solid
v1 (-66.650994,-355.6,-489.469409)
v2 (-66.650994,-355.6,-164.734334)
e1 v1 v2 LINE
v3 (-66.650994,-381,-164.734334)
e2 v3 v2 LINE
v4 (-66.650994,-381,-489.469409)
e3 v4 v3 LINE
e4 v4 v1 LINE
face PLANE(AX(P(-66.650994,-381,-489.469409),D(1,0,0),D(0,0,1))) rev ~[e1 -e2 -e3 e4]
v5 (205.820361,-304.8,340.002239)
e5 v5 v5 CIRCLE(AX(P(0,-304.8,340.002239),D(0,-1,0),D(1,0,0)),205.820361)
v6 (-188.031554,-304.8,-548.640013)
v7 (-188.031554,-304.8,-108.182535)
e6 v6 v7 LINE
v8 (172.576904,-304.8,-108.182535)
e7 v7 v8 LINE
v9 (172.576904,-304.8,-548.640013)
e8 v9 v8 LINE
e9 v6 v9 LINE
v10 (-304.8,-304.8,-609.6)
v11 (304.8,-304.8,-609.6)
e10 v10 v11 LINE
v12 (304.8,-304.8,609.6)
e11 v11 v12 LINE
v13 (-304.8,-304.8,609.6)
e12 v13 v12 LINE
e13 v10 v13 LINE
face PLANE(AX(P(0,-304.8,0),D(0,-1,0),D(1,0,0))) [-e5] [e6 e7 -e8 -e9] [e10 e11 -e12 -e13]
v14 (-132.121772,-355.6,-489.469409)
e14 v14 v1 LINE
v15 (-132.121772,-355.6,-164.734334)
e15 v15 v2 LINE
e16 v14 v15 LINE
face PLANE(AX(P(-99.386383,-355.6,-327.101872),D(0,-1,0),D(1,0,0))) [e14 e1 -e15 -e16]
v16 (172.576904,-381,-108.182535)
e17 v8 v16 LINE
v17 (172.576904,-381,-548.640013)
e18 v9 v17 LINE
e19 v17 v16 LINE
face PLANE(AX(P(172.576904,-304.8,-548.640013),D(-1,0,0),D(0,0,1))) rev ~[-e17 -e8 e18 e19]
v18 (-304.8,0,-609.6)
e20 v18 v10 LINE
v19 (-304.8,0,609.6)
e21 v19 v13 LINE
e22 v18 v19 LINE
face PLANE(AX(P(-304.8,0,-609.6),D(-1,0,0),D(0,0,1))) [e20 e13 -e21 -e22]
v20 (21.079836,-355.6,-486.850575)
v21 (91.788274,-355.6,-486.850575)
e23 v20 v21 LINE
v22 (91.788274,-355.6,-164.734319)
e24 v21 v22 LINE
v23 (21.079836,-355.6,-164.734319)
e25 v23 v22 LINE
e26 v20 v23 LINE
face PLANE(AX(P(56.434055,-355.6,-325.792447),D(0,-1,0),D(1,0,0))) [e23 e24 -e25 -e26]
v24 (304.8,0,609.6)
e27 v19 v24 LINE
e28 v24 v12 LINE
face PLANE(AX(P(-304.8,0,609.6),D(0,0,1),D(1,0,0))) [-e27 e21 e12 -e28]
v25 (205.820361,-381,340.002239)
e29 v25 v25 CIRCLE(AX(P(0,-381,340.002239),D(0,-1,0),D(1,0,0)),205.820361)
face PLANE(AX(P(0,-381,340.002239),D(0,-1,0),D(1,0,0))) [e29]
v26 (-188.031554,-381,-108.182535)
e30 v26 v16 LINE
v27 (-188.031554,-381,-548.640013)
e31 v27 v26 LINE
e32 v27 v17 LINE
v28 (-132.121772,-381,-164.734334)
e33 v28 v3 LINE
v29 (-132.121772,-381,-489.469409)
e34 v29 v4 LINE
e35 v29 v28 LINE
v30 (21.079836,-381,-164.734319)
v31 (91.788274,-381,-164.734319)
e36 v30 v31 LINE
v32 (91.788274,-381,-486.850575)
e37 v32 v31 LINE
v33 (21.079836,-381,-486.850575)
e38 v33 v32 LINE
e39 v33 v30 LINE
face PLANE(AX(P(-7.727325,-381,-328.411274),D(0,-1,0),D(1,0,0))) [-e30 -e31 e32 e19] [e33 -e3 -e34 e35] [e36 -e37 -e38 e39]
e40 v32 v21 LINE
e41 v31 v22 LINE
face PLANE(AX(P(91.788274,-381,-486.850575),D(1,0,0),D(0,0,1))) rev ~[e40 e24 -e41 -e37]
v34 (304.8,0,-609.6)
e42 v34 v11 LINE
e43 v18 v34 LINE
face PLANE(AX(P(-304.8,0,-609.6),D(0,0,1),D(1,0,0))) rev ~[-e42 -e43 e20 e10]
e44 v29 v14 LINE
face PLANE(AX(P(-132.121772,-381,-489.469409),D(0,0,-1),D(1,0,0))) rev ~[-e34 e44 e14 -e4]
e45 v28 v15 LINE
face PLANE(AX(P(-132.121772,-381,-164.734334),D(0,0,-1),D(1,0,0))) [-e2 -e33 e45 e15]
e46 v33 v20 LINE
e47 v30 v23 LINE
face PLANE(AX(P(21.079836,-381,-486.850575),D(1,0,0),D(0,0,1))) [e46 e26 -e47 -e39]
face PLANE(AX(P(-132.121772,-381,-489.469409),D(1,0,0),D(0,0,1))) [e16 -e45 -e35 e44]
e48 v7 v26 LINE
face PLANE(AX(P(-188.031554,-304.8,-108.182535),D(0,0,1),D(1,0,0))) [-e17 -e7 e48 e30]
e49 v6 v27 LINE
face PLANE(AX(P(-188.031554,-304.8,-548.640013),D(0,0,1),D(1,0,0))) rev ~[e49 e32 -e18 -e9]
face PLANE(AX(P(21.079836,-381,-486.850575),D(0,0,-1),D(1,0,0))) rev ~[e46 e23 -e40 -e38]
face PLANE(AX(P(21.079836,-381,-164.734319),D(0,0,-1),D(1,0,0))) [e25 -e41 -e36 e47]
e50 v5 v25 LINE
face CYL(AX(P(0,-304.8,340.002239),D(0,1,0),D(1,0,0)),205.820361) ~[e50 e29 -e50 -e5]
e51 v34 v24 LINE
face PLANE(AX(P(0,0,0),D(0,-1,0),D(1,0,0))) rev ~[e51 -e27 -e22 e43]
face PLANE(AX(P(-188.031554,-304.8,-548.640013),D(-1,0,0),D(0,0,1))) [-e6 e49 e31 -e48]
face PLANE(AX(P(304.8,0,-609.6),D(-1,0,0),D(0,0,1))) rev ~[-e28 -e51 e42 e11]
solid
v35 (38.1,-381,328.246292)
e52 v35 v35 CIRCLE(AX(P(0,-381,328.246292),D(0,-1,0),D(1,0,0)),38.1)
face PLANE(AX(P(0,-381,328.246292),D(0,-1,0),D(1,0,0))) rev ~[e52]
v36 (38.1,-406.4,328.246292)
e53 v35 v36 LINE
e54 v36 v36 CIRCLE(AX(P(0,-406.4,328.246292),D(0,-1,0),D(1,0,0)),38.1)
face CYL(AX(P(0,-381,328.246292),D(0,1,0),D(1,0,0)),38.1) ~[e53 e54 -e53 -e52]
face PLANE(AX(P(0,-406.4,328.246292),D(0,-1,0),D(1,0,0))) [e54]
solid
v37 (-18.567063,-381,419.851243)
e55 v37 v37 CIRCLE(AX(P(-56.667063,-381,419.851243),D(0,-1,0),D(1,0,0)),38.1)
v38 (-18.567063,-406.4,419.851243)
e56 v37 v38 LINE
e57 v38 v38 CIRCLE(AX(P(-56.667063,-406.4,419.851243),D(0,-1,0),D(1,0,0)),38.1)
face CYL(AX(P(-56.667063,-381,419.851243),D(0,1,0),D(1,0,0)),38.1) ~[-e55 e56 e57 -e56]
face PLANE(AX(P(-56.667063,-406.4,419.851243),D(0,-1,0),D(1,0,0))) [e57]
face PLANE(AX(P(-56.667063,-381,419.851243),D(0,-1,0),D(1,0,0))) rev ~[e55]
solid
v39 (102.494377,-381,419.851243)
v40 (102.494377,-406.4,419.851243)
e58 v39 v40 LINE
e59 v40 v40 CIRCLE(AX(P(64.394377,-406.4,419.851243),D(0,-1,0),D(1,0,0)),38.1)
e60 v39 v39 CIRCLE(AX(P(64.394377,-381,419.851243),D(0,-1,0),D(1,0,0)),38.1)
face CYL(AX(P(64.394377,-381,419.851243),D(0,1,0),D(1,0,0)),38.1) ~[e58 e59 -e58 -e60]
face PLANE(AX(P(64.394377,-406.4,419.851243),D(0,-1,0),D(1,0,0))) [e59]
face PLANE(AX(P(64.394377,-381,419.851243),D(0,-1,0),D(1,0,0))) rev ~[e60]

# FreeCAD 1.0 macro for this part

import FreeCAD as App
import Part
import Sketcher
from FreeCAD import Vector
Q = App.Units.Quantity

doc = App.newDocument("Part")
body = doc.addObject("PartDesign::Body", "Body")

sketch1 = body.newObject("Sketcher::SketchObject", "Sketch")
sketch1.AttachmentSupport = (doc.getObject("XZ_Plane"), [""])
sketch1.MapMode = "FlatFace"
sketch1.addGeometry([
    Part.LineSegment(Vector(-305, 610, 0), Vector(-305, -610, 0)),
    Part.LineSegment(Vector(-305, -610, 0), Vector(305, -610, 0)),
    Part.LineSegment(Vector(305, -610, 0), Vector(305, 610, 0)),
    Part.LineSegment(Vector(305, 610, 0), Vector(-305, 610, 0)),
], False)
sketch1.addConstraint([
    Sketcher.Constraint("Coincident", 0, 2, 1, 1),
    Sketcher.Constraint("Coincident", 1, 2, 2, 1),
    Sketcher.Constraint("Coincident", 2, 2, 3, 1),
    Sketcher.Constraint("Coincident", 3, 2, 0, 1),
    Sketcher.Constraint("Vertical", 0),
    Sketcher.Constraint("Horizontal", 1),
    Sketcher.Constraint("Vertical", 2),
    Sketcher.Constraint("Horizontal", 3),
    Sketcher.Constraint("Symmetric", 0, 2, 2, 2, -1, 1),
    Sketcher.Constraint("DistanceX", 1, 1, 1, 2, Q("24 in")),
    Sketcher.Constraint("DistanceY", 0, 2, 0, 1, Q("48 in")),
])
pad1 = body.newObject("PartDesign::Pad", "Pad")
pad1.Profile = sketch1
pad1.Length = Q("12 in")

sketch2 = body.newObject("Sketcher::SketchObject", "Sketch001")
sketch2.AttachmentSupport = (doc.getObject("XZ_Plane"), [""])
sketch2.MapMode = "FlatFace"
sketch2.AttachmentOffset = App.Placement(Vector(0, 0, 12 * 25.4), App.Rotation())
sketch2.addGeometry(Part.Circle(Vector(0, 340, 0), Vector(0, 0, 1), 206), False)
sketch2.addConstraint([
    Sketcher.Constraint("PointOnObject", 0, 3, -2),
    Sketcher.Constraint("Diameter", 0, 411.640722),
    Sketcher.Constraint("DistanceY", -1, 1, 0, 3, 340.002239),
])
pad2 = body.newObject("PartDesign::Pad", "Pad001")
pad2.Profile = sketch2
pad2.Length = Q("3 in")

sketch3 = body.newObject("Sketcher::SketchObject", "Sketch002")
sketch3.AttachmentSupport = (doc.getObject("XZ_Plane"), [""])
sketch3.MapMode = "FlatFace"
sketch3.AttachmentOffset = App.Placement(Vector(0, 0, 12 * 25.4), App.Rotation())
sketch3.addGeometry([
    Part.LineSegment(Vector(-188, -108, 0), Vector(-188, -549, 0)),
    Part.LineSegment(Vector(-188, -549, 0), Vector(173, -549, 0)),
    Part.LineSegment(Vector(173, -549, 0), Vector(173, -108, 0)),
    Part.LineSegment(Vector(173, -108, 0), Vector(-188, -108, 0)),
], False)
sketch3.addConstraint([
    Sketcher.Constraint("Coincident", 0, 2, 1, 1),
    Sketcher.Constraint("Coincident", 1, 2, 2, 1),
    Sketcher.Constraint("Coincident", 2, 2, 3, 1),
    Sketcher.Constraint("Coincident", 3, 2, 0, 1),
    Sketcher.Constraint("Vertical", 0),
    Sketcher.Constraint("Horizontal", 1),
    Sketcher.Constraint("Vertical", 2),
    Sketcher.Constraint("Horizontal", 3),
    Sketcher.Constraint("DistanceX", 1, 1, 1, 2, 360.608458),
    Sketcher.Constraint("DistanceY", 0, 2, 0, 1, 440.457478),
    Sketcher.Constraint("DistanceX", 0, 2, -1, 1, 188.031554),
    Sketcher.Constraint("DistanceY", 0, 2, -1, 1, 548.640013),
])
pad3 = body.newObject("PartDesign::Pad", "Pad002")
pad3.Profile = sketch3
pad3.Length = Q("3 in")

sketch4 = body.newObject("Sketcher::SketchObject", "Sketch003")
sketch4.AttachmentSupport = (doc.getObject("XZ_Plane"), [""])
sketch4.MapMode = "FlatFace"
sketch4.AttachmentOffset = App.Placement(Vector(0, 0, 15 * 25.4), App.Rotation())
sketch4.addGeometry([
    Part.LineSegment(Vector(-132, -165, 0), Vector(-132, -489, 0)),
    Part.LineSegment(Vector(-132, -489, 0), Vector(-67, -489, 0)),
    Part.LineSegment(Vector(-67, -489, 0), Vector(-67, -165, 0)),
    Part.LineSegment(Vector(-67, -165, 0), Vector(-132, -165, 0)),
    Part.LineSegment(Vector(21, -165, 0), Vector(21, -487, 0)),
    Part.LineSegment(Vector(21, -487, 0), Vector(92, -487, 0)),
    Part.LineSegment(Vector(92, -487, 0), Vector(92, -165, 0)),
    Part.LineSegment(Vector(92, -165, 0), Vector(21, -165, 0)),
], False)
sketch4.addConstraint([
    Sketcher.Constraint("Coincident", 0, 2, 1, 1),
    Sketcher.Constraint("Coincident", 1, 2, 2, 1),
    Sketcher.Constraint("Coincident", 2, 2, 3, 1),
    Sketcher.Constraint("Coincident", 3, 2, 0, 1),
    Sketcher.Constraint("Coincident", 4, 2, 5, 1),
    Sketcher.Constraint("Coincident", 5, 2, 6, 1),
    Sketcher.Constraint("Coincident", 6, 2, 7, 1),
    Sketcher.Constraint("Coincident", 7, 2, 4, 1),
    Sketcher.Constraint("Vertical", 0),
    Sketcher.Constraint("Horizontal", 1),
    Sketcher.Constraint("Vertical", 2),
    Sketcher.Constraint("Horizontal", 3),
    Sketcher.Constraint("Vertical", 4),
    Sketcher.Constraint("Horizontal", 5),
    Sketcher.Constraint("Vertical", 6),
    Sketcher.Constraint("Horizontal", 7),
    Sketcher.Constraint("DistanceX", 5, 1, 5, 2, 70.708439),
    Sketcher.Constraint("DistanceX", 1, 1, 1, 2, 65.470778),
    Sketcher.Constraint("DistanceY", 0, 2, 0, 1, 324.735075),
    Sketcher.Constraint("DistanceY", 4, 2, 4, 1, 322.116256),
    Sketcher.Constraint("DistanceX", 0, 2, -1, 1, 132.121772),
    Sketcher.Constraint("DistanceY", 0, 2, -1, 1, 489.469409),
    Sketcher.Constraint("DistanceY", 6, 2, -1, 1, 164.734319),
    Sketcher.Constraint("DistanceX", 1, 2, 4, 2, 87.730829),
])
pocket1 = body.newObject("PartDesign::Pocket", "Pocket")
pocket1.Profile = sketch4
pocket1.Length = Q("1 in")
body2 = doc.addObject("PartDesign::Body", "Body001")

sketch5 = body2.newObject("Sketcher::SketchObject", "Sketch004")
sketch5.AttachmentSupport = (doc.getObject("XZ_Plane001"), [""])
sketch5.MapMode = "FlatFace"
sketch5.AttachmentOffset = App.Placement(Vector(0, 0, 15 * 25.4), App.Rotation())
sketch5.addGeometry(Part.Circle(Vector(-57, 420, 0), Vector(0, 0, 1), 38), False)
sketch5.addConstraint([
    Sketcher.Constraint("Diameter", 0, Q("3 in")),
    Sketcher.Constraint("DistanceX", 0, 3, -1, 1, 56.667063),
    Sketcher.Constraint("DistanceY", -1, 1, 0, 3, 419.851243),
])
pad4 = body2.newObject("PartDesign::Pad", "Pad003")
pad4.Profile = sketch5
pad4.Length = Q("1 in")
body3 = doc.addObject("PartDesign::Body", "Body002")

sketch6 = body3.newObject("Sketcher::SketchObject", "Sketch005")
sketch6.AttachmentSupport = (doc.getObject("XZ_Plane002"), [""])
sketch6.MapMode = "FlatFace"
sketch6.AttachmentOffset = App.Placement(Vector(0, 0, 15 * 25.4), App.Rotation())
sketch6.addGeometry(Part.Circle(Vector(64, 420, 0), Vector(0, 0, 1), 38), False)
sketch6.addConstraint([
    Sketcher.Constraint("Diameter", 0, Q("3 in")),
    Sketcher.Constraint("DistanceX", -1, 1, 0, 3, 64.394377),
    Sketcher.Constraint("DistanceY", -1, 1, 0, 3, 419.851243),
])
pad5 = body3.newObject("PartDesign::Pad", "Pad004")
pad5.Profile = sketch6
pad5.Length = Q("1 in")
body4 = doc.addObject("PartDesign::Body", "Body003")

sketch7 = body4.newObject("Sketcher::SketchObject", "Sketch006")
sketch7.AttachmentSupport = (doc.getObject("XZ_Plane003"), [""])
sketch7.MapMode = "FlatFace"
sketch7.AttachmentOffset = App.Placement(Vector(0, 0, 15 * 25.4), App.Rotation())
sketch7.addGeometry(Part.Circle(Vector(0, 328, 0), Vector(0, 0, 1), 38), False)
sketch7.addConstraint([
    Sketcher.Constraint("PointOnObject", 0, 3, -2),
    Sketcher.Constraint("Diameter", 0, Q("3 in")),
    Sketcher.Constraint("DistanceY", -1, 1, 0, 3, 328.246292),
])
pad6 = body4.newObject("PartDesign::Pad", "Pad005")
pad6.Profile = sketch7
pad6.Length = Q("1 in")

doc.recompute()
